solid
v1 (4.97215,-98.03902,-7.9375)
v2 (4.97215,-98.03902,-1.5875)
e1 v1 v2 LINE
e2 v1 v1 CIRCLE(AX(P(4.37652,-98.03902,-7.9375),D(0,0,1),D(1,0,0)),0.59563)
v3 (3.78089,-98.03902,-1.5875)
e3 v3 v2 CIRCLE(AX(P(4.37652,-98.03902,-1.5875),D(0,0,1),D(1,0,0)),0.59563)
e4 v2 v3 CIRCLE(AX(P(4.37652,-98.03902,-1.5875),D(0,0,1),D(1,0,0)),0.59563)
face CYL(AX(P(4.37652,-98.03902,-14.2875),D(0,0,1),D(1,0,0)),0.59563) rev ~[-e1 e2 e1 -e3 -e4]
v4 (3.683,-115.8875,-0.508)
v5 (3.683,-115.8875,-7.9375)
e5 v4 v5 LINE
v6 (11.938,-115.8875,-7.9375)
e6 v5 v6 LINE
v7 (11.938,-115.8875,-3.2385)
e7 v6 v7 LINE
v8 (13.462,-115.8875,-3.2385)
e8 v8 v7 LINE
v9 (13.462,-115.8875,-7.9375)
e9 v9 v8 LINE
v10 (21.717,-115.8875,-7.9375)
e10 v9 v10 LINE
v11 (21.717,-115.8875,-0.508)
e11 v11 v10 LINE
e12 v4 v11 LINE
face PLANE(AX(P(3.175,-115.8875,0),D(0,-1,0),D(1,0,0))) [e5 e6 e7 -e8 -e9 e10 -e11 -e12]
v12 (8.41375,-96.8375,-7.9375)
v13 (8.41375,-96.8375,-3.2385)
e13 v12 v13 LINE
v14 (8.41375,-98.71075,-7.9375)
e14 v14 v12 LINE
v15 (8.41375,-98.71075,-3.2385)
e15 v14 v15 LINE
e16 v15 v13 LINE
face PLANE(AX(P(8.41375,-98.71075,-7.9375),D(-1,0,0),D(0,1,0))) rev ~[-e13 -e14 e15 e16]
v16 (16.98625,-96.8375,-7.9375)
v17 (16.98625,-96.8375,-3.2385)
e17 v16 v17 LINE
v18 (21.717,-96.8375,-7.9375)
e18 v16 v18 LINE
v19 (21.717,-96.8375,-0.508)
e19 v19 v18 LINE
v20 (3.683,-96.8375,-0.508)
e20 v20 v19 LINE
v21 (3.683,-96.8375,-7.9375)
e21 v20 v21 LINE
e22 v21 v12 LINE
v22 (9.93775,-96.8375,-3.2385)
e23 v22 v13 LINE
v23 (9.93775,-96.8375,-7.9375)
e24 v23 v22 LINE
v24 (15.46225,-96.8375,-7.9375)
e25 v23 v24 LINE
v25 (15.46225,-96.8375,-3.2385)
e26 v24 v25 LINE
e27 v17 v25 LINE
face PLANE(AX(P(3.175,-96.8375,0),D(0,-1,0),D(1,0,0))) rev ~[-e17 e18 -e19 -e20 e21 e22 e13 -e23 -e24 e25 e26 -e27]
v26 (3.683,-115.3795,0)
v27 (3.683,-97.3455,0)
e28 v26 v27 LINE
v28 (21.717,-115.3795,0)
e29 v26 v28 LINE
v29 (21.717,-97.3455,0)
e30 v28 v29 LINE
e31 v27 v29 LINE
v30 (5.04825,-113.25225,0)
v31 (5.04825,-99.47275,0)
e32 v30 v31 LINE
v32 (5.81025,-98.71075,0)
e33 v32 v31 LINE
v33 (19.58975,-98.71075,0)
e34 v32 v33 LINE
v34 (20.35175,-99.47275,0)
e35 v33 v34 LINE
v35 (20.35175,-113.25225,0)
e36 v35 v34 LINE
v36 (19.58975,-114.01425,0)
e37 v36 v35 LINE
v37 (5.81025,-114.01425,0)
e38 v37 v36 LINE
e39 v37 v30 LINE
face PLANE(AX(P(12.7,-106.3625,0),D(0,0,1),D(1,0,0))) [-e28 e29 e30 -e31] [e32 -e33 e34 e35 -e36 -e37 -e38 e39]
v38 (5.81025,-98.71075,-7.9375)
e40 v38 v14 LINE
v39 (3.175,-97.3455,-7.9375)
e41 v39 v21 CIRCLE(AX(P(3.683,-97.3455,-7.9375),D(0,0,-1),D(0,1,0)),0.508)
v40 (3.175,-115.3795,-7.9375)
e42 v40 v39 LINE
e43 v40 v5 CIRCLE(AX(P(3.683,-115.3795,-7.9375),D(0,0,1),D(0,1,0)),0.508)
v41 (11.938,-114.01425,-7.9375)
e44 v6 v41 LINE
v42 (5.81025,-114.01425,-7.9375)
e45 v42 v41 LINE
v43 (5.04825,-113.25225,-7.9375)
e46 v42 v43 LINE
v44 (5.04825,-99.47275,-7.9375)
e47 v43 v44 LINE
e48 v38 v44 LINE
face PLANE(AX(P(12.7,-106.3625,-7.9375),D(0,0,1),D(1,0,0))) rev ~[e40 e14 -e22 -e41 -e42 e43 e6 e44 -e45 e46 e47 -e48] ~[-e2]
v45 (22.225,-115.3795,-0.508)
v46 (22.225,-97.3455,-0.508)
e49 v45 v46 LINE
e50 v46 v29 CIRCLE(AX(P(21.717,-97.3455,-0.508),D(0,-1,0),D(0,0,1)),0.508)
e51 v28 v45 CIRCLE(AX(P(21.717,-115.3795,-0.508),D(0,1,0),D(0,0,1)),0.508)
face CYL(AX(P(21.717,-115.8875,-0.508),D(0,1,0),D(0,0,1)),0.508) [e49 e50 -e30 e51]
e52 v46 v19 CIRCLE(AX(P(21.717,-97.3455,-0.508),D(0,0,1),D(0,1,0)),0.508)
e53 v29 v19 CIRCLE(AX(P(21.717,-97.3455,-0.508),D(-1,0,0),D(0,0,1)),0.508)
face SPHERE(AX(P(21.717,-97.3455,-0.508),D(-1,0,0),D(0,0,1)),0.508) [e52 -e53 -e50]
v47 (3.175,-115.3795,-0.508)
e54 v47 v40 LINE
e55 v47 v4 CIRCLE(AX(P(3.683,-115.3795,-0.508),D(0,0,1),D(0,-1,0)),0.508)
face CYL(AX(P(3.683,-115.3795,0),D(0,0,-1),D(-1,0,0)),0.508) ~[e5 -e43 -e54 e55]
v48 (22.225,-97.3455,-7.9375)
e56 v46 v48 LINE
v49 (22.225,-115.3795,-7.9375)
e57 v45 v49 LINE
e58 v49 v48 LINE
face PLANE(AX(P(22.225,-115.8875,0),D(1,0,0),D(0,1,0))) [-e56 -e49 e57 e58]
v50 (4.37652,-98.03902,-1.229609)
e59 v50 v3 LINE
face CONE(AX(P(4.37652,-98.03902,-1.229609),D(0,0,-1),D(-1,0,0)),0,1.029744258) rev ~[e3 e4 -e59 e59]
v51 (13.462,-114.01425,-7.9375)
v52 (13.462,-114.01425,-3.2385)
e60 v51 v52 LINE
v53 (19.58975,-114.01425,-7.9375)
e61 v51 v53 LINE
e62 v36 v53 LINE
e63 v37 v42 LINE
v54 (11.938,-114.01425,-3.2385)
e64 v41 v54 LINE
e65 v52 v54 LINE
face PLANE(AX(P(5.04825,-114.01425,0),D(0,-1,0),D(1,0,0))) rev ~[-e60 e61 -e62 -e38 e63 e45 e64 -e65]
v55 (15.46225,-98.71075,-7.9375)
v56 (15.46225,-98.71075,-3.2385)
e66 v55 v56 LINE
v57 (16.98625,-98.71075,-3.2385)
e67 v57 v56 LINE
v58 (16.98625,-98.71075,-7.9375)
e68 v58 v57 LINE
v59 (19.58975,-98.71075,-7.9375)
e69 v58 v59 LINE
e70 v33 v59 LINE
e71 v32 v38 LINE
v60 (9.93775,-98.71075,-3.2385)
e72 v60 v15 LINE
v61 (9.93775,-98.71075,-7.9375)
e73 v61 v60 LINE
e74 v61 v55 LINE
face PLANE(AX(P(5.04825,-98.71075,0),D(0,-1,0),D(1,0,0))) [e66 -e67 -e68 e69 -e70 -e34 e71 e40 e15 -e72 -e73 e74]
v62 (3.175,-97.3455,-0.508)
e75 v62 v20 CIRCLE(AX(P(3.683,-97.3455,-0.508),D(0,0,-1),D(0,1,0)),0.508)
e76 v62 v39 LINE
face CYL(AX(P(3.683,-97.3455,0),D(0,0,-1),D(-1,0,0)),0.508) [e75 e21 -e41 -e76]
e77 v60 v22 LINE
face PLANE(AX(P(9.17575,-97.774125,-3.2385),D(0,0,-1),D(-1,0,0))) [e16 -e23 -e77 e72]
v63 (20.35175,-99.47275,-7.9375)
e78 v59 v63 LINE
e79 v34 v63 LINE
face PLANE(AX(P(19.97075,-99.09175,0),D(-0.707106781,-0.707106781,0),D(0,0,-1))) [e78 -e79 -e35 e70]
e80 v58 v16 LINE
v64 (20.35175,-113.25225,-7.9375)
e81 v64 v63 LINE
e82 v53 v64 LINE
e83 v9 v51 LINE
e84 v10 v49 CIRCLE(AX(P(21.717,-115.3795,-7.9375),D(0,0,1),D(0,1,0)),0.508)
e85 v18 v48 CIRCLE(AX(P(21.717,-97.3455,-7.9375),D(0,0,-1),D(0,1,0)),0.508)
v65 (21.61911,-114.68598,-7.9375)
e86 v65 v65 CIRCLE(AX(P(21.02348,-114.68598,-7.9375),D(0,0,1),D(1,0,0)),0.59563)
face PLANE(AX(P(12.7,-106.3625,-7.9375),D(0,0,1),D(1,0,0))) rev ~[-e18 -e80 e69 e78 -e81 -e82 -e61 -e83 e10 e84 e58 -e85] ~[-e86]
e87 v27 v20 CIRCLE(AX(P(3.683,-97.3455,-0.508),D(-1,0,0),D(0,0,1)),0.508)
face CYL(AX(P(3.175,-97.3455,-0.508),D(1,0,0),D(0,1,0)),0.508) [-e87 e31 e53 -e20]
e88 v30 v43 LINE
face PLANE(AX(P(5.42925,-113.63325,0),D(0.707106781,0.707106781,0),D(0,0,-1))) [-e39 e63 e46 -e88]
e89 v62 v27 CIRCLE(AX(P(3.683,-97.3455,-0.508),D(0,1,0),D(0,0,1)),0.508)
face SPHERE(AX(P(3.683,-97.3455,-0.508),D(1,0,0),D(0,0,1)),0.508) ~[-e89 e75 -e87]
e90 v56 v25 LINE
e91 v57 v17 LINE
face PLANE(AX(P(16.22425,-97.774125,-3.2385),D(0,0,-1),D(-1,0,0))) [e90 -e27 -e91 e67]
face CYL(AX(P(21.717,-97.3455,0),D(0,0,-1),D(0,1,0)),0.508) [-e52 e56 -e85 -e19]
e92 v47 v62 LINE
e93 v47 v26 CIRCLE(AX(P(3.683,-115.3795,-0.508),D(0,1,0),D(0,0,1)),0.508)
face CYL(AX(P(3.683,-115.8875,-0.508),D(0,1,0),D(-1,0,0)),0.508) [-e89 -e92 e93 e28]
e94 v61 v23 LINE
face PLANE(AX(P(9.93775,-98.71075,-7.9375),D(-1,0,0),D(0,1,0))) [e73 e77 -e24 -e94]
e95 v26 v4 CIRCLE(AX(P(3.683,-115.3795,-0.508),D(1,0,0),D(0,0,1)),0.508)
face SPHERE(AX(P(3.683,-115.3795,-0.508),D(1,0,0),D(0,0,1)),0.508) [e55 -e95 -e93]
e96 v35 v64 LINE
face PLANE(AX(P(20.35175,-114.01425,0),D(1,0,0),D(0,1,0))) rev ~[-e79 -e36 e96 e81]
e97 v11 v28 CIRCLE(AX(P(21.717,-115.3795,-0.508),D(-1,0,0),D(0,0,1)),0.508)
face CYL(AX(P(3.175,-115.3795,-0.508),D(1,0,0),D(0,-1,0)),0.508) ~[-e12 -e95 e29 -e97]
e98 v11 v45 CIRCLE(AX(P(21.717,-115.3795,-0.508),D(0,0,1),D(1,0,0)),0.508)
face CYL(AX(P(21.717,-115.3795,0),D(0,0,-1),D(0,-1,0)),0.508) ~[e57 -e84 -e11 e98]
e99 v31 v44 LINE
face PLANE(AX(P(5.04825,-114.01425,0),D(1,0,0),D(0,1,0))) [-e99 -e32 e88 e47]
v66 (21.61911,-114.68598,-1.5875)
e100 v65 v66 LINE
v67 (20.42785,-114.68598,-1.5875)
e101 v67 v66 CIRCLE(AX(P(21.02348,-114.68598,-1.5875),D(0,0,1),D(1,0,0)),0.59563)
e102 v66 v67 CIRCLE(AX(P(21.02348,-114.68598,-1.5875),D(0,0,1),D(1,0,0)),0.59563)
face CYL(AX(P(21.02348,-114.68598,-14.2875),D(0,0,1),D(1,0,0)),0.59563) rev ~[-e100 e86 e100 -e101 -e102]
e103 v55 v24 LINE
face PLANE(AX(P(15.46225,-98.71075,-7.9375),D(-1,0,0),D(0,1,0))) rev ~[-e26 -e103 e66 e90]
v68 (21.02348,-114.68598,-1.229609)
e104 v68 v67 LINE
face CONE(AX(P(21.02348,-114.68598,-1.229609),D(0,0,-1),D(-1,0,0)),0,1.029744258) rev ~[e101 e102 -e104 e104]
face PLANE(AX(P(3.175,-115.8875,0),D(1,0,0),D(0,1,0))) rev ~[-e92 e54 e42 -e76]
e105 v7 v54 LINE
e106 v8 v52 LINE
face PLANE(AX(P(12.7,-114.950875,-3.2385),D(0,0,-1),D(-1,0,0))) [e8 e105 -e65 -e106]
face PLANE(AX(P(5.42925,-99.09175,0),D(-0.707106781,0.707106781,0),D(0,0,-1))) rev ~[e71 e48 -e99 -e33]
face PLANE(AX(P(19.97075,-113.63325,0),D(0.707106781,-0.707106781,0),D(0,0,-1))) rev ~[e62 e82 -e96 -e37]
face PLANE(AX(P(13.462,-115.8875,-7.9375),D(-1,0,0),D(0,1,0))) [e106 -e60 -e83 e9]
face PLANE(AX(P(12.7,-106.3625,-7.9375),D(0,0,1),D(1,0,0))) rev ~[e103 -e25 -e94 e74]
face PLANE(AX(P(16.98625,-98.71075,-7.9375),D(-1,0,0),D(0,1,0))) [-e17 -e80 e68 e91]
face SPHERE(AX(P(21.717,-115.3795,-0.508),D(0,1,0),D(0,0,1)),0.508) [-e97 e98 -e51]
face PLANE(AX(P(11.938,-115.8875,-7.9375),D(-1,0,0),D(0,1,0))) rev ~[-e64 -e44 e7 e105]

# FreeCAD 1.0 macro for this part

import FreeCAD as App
import Part
import Sketcher

V = App.Vector
Q = App.Units.Quantity


def edges_at(feature, points):
    """Names of the edges that pass closest to the given points."""
    edges = feature.Shape.Edges
    near = lambda p: min(range(len(edges)), key=lambda i: edges[i].distToShape(Part.Vertex(*p))[0])
    return sorted({f"Edge{near(p) + 1}" for p in points})

doc = App.newDocument("Part")
params = doc.addObject("Spreadsheet::Sheet", "Params")
for row, (alias, value) in enumerate([
    ("sketch1_width", "0.75 in"),
    ("pad1_length", "0.3125 in"),
    ("sketch2_width", "0.06 in"),
    ("pocket1_length", "0.185 in"),
    ("fillet_radius", "0.02 in"),
    ("chamfer_size", "0.03 in"),
    ("hole_diameter", "0.0469 in"),
    ("hole_depth", "0.25 in"),
], start=1):
    params.set(f"A{row}", alias)
    params.set(f"B{row}", "=" + value)
    params.setAlias(f"B{row}", alias)

body = doc.addObject("PartDesign::Body", "Body")

# Sketch on XY plane
sketch1 = body.newObject("Sketcher::SketchObject", "Sketch")
sketch1.AttachmentSupport = (doc.getObject("XY_Plane"), [""])
sketch1.MapMode = "FlatFace"
sketch1.addGeometry(Part.LineSegment(V(3, -97, 0), V(3, -116, 0)), False)
sketch1.addGeometry(Part.LineSegment(V(3, -116, 0), V(22, -116, 0)), False)
sketch1.addGeometry(Part.LineSegment(V(22, -116, 0), V(22, -97, 0)), False)
sketch1.addGeometry(Part.LineSegment(V(22, -97, 0), V(3, -97, 0)), False)
sketch1.addGeometry(Part.LineSegment(V(20, -114, 0), V(5, -114, 0)), False)
sketch1.addGeometry(Part.LineSegment(V(5, -114, 0), V(5, -99, 0)), False)
sketch1.addGeometry(Part.LineSegment(V(5, -99, 0), V(20, -99, 0)), False)
sketch1.addGeometry(Part.LineSegment(V(20, -99, 0), V(20, -114, 0)), False)
sketch1.addConstraint(Sketcher.Constraint("Coincident", 0, 2, 1, 1))
sketch1.addConstraint(Sketcher.Constraint("Coincident", 1, 2, 2, 1))
sketch1.addConstraint(Sketcher.Constraint("Coincident", 2, 2, 3, 1))
sketch1.addConstraint(Sketcher.Constraint("Coincident", 3, 2, 0, 1))
sketch1.addConstraint(Sketcher.Constraint("Coincident", 4, 2, 5, 1))
sketch1.addConstraint(Sketcher.Constraint("Coincident", 5, 2, 6, 1))
sketch1.addConstraint(Sketcher.Constraint("Coincident", 6, 2, 7, 1))
sketch1.addConstraint(Sketcher.Constraint("Coincident", 7, 2, 4, 1))
sketch1.addConstraint(Sketcher.Constraint("Vertical", 0))
sketch1.addConstraint(Sketcher.Constraint("Horizontal", 1))
sketch1.addConstraint(Sketcher.Constraint("Vertical", 2))
sketch1.addConstraint(Sketcher.Constraint("Horizontal", 3))
sketch1.addConstraint(Sketcher.Constraint("Horizontal", 4))
sketch1.addConstraint(Sketcher.Constraint("Vertical", 5))
sketch1.addConstraint(Sketcher.Constraint("Horizontal", 6))
sketch1.addConstraint(Sketcher.Constraint("Vertical", 7))
sketch1.addConstraint(Sketcher.Constraint("Equal", 3, 0))
sketch1.addConstraint(Sketcher.Constraint("Equal", 6, 5))
sketch1.addConstraint(Sketcher.Constraint("DistanceX", 1, 1, 1, 2, Q("0.75 in")))
sketch1.addConstraint(Sketcher.Constraint("DistanceX", 4, 2, 4, 1, Q("0.6025 in")))
sketch1.addConstraint(Sketcher.Constraint("DistanceX", -1, 1, 0, 2, Q("0.125 in")))
sketch1.addConstraint(Sketcher.Constraint("DistanceY", 0, 2, -1, 1, Q("4.5625 in")))
sketch1.addConstraint(Sketcher.Constraint("DistanceX", -1, 1, 4, 2, 5.04825))
sketch1.addConstraint(Sketcher.Constraint("DistanceY", 4, 2, -1, 1, 114.01425))
sketch1.setExpression("Constraints[18]", "Params.sketch1_width")
pad1 = body.newObject("PartDesign::Pad", "Pad")
pad1.Profile = sketch1
pad1.setExpression("Length", "Params.pad1_length")
pad1.Reversed = True

# Sketch on XY plane
sketch2 = body.newObject("Sketcher::SketchObject", "Sketch001")
sketch2.AttachmentSupport = (doc.getObject("XY_Plane"), [""])
sketch2.MapMode = "FlatFace"
sketch2.AttachmentOffset = App.Placement(V(0, 0, -0.3125 * 25.4), App.Rotation())
sketch2.addGeometry(Part.LineSegment(V(13.5, -114, 0), V(13.5, -115.9, 0)), False)
sketch2.addGeometry(Part.LineSegment(V(13.5, -115.9, 0), V(11.9, -115.9, 0)), False)
sketch2.addGeometry(Part.LineSegment(V(11.9, -115.9, 0), V(11.9, -114, 0)), False)
sketch2.addGeometry(Part.LineSegment(V(11.9, -114, 0), V(13.5, -114, 0)), False)
sketch2.addGeometry(Part.LineSegment(V(9.9, -96.8, 0), V(9.9, -98.7, 0)), False)
sketch2.addGeometry(Part.LineSegment(V(9.9, -98.7, 0), V(8.4, -98.7, 0)), False)
sketch2.addGeometry(Part.LineSegment(V(8.4, -98.7, 0), V(8.4, -96.8, 0)), False)
sketch2.addGeometry(Part.LineSegment(V(8.4, -96.8, 0), V(9.9, -96.8, 0)), False)
sketch2.addGeometry(Part.LineSegment(V(17, -96.8, 0), V(17, -98.7, 0)), False)
sketch2.addGeometry(Part.LineSegment(V(17, -98.7, 0), V(15.5, -98.7, 0)), False)
sketch2.addGeometry(Part.LineSegment(V(15.5, -98.7, 0), V(15.5, -96.8, 0)), False)
sketch2.addGeometry(Part.LineSegment(V(15.5, -96.8, 0), V(17, -96.8, 0)), False)
sketch2.addConstraint(Sketcher.Constraint("Coincident", 0, 2, 1, 1))
sketch2.addConstraint(Sketcher.Constraint("Coincident", 1, 2, 2, 1))
sketch2.addConstraint(Sketcher.Constraint("Coincident", 2, 2, 3, 1))
sketch2.addConstraint(Sketcher.Constraint("Coincident", 3, 2, 0, 1))
sketch2.addConstraint(Sketcher.Constraint("Coincident", 4, 2, 5, 1))
sketch2.addConstraint(Sketcher.Constraint("Coincident", 5, 2, 6, 1))
sketch2.addConstraint(Sketcher.Constraint("Coincident", 6, 2, 7, 1))
sketch2.addConstraint(Sketcher.Constraint("Coincident", 7, 2, 4, 1))
sketch2.addConstraint(Sketcher.Constraint("Coincident", 8, 2, 9, 1))
sketch2.addConstraint(Sketcher.Constraint("Coincident", 9, 2, 10, 1))
sketch2.addConstraint(Sketcher.Constraint("Coincident", 10, 2, 11, 1))
sketch2.addConstraint(Sketcher.Constraint("Coincident", 11, 2, 8, 1))
sketch2.addConstraint(Sketcher.Constraint("Vertical", 0))
sketch2.addConstraint(Sketcher.Constraint("Horizontal", 1))
sketch2.addConstraint(Sketcher.Constraint("Vertical", 2))
sketch2.addConstraint(Sketcher.Constraint("Horizontal", 3))
sketch2.addConstraint(Sketcher.Constraint("Vertical", 4))
sketch2.addConstraint(Sketcher.Constraint("Horizontal", 5))
sketch2.addConstraint(Sketcher.Constraint("Vertical", 6))
sketch2.addConstraint(Sketcher.Constraint("Horizontal", 7))
sketch2.addConstraint(Sketcher.Constraint("Vertical", 8))
sketch2.addConstraint(Sketcher.Constraint("Horizontal", 9))
sketch2.addConstraint(Sketcher.Constraint("Vertical", 10))
sketch2.addConstraint(Sketcher.Constraint("Horizontal", 11))
sketch2.addConstraint(Sketcher.Constraint("Horizontal", 5, 2, 8, 2))
sketch2.addConstraint(Sketcher.Constraint("Horizontal", 7, 2, 10, 2))
sketch2.addConstraint(Sketcher.Constraint("Equal", 3, 5))
sketch2.addConstraint(Sketcher.Constraint("Equal", 7, 9))
sketch2.addConstraint(Sketcher.Constraint("Equal", 2, 4))
sketch2.addConstraint(Sketcher.Constraint("DistanceX", 1, 2, 1, 1, Q("0.06 in")))
sketch2.addConstraint(Sketcher.Constraint("DistanceX", -1, 1, 0, 2, Q("0.53 in")))
sketch2.addConstraint(Sketcher.Constraint("DistanceY", 1, 2, 6, 2, Q("0.75 in")))
sketch2.addConstraint(Sketcher.Constraint("DistanceY", 0, 2, -1, 1, Q("4.5625 in")))
sketch2.addConstraint(Sketcher.Constraint("DistanceY", 2, 2, 4, 2, Q("0.6025 in")))
sketch2.addConstraint(Sketcher.Constraint("DistanceX", 4, 2, 8, 2, Q("0.2775 in")))
sketch2.addConstraint(Sketcher.Constraint("DistanceX", -1, 1, 4, 2, 9.93775))
sketch2.setExpression("Constraints[29]", "Params.sketch2_width")
pocket1 = body.newObject("PartDesign::Pocket", "Pocket")
pocket1.Profile = sketch2
pocket1.setExpression("Length", "Params.pocket1_length")
pocket1.Reversed = True
doc.recompute()

fillet = body.newObject("PartDesign::Fillet", "Fillet")
fillet.Base = (pocket1, edges_at(pocket1, [
    (12.7, -96.838, 0),
    (22.225, -106.362, 0),
    (12.7, -115.888, 0),
    (3.175, -106.362, 0),
    (3.175, -96.838, -3.969),
    (22.225, -96.838, -3.969),
    (22.225, -115.888, -3.969),
    (3.175, -115.888, -3.969),
]))
fillet.setExpression("Radius", "Params.fillet_radius")
doc.recompute()

chamfer = body.newObject("PartDesign::Chamfer", "Chamfer")
chamfer.Base = (fillet, edges_at(fillet, [
    (5.048, -114.014, -3.969),
    (5.048, -98.711, -3.969),
    (20.352, -98.711, -3.969),
    (20.352, -114.014, -3.969),
]))
chamfer.setExpression("Size", "Params.chamfer_size")

# Sketch on XY plane
sketch3 = body.newObject("Sketcher::SketchObject", "Sketch002")
sketch3.AttachmentSupport = (doc.getObject("XY_Plane"), [""])
sketch3.MapMode = "FlatFace"
sketch3.AttachmentOffset = App.Placement(V(0, 0, -0.3125 * 25.4), App.Rotation())
sketch3.addGeometry(Part.Circle(V(4.4, -98, 0), V(0, 0, 1), 0.6), False)
sketch3.addGeometry(Part.Circle(V(21, -114.7, 0), V(0, 0, 1), 0.6), False)
sketch3.addConstraint(Sketcher.Constraint("Equal", 0, 1))
sketch3.addConstraint(Sketcher.Constraint("Diameter", 0, Q("0.0469 in")))
sketch3.addConstraint(Sketcher.Constraint("DistanceX", -1, 1, 0, 3, 4.37652))
sketch3.addConstraint(Sketcher.Constraint("DistanceY", 0, 3, -1, 1, 98.03902))
sketch3.addConstraint(Sketcher.Constraint("DistanceX", -1, 1, 1, 3, 21.02348))
sketch3.addConstraint(Sketcher.Constraint("DistanceY", 1, 3, -1, 1, 114.68598))
doc.recompute()
hole = body.newObject("PartDesign::Hole", "Hole")
hole.Profile = sketch3
hole.ThreadType = "None"
hole.setExpression("Diameter", "Params.hole_diameter")
hole.DepthType = "Dimension"
hole.setExpression("Depth", "Params.hole_depth")
hole.DrillPoint = "Angled"
hole.DrillPointAngle = 118
hole.Reversed = True

doc.recompute()
